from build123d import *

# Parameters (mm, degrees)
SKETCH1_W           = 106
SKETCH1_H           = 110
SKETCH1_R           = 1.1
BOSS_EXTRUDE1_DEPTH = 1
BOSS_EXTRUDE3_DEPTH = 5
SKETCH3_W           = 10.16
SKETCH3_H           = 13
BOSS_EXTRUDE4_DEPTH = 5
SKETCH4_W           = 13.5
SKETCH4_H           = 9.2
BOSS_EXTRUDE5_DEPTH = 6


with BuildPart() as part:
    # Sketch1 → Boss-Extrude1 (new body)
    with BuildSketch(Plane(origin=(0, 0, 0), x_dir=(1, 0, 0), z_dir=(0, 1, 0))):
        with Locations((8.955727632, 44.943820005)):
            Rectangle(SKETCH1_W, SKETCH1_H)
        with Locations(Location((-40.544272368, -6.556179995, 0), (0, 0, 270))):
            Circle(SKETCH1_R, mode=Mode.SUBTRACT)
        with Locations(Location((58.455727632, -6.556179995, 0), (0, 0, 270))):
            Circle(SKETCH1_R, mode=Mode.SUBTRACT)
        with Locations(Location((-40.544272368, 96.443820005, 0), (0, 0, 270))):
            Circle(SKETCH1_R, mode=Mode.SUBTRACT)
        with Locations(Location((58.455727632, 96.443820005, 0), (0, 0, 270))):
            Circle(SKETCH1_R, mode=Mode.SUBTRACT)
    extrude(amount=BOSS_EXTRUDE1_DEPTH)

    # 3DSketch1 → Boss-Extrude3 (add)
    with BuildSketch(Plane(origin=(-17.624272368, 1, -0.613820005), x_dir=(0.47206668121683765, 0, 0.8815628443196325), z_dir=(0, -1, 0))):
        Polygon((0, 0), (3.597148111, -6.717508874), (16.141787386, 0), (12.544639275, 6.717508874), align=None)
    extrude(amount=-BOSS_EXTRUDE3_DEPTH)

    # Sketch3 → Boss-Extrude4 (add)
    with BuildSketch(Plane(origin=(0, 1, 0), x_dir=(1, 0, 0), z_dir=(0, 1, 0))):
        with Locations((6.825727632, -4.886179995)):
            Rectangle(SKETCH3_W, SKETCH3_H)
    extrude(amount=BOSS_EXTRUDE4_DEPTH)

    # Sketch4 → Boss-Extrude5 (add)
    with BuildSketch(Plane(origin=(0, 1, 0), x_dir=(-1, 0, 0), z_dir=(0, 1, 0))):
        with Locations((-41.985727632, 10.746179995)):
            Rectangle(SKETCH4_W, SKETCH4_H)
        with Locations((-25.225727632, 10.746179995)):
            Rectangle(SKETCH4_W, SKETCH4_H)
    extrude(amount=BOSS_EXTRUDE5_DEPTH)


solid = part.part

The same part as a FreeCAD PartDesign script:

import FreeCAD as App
import Part
import Sketcher

V = App.Vector
Q = App.Units.Quantity

doc = App.newDocument("Part")
params = doc.addObject("Spreadsheet::Sheet", "Params")
for row, (alias, value) in enumerate([
    ("sketch1_diameter", "2.2 mm"),
    ("sketch1_width", "106 mm"),
    ("sketch1_height", "110 mm"),
    ("pad1_length", "1 mm"),
    ("sketch2_width", "7.62 mm"),
    ("sketch2_height", "14.23 mm"),
    ("pad2_length", "5 mm"),
    ("sketch3_height", "13 mm"),
    ("sketch3_width", "10.16 mm"),
    ("pad3_length", "5 mm"),
    ("sketch4_width", "13.5 mm"),
    ("sketch4_height", "9.2 mm"),
    ("pad4_length", "6 mm"),
], start=1):
    params.set(f"A{row}", alias)
    params.set(f"B{row}", "=" + value)
    params.setAlias(f"B{row}", alias)

body = doc.addObject("PartDesign::Body", "Body")

# Sketch on XZ plane
sketch1 = body.newObject("Sketcher::SketchObject", "Sketch")
sketch1.AttachmentSupport = (doc.getObject("XZ_Plane"), [""])
sketch1.MapMode = "FlatFace"
sketch1.addGeometry([
    Part.LineSegment(V(-44, -99.9, 0), V(-44, 10.1, 0)),  # 0
    Part.LineSegment(V(-44, 10.1, 0), V(62, 10.1, 0)),  # 1
    Part.LineSegment(V(62, 10.1, 0), V(62, -99.9, 0)),  # 2
    Part.LineSegment(V(62, -99.9, 0), V(-44, -99.9, 0)),  # 3
    Part.Circle(V(-40.5, 6.6, 0), V(0, 0, 1), 1.1),  # 4
    Part.Circle(V(58.5, 6.6, 0), V(0, 0, 1), 1.1),  # 5
    Part.Circle(V(-40.5, -96.4, 0), V(0, 0, 1), 1.1),  # 6
    Part.Circle(V(58.5, -96.4, 0), V(0, 0, 1), 1.1),  # 7
], False)
sketch1.addConstraint([
    Sketcher.Constraint("Coincident", 0, 2, 1, 1),
    Sketcher.Constraint("Coincident", 1, 2, 2, 1),
    Sketcher.Constraint("Coincident", 2, 2, 3, 1),
    Sketcher.Constraint("Coincident", 3, 2, 0, 1),
    Sketcher.Constraint("Vertical", 0),
    Sketcher.Constraint("Horizontal", 1),
    Sketcher.Constraint("Vertical", 2),
    Sketcher.Constraint("Horizontal", 3),
    Sketcher.Constraint("Equal", 4, 5),
    Sketcher.Constraint("Equal", 5, 6),
    Sketcher.Constraint("Equal", 6, 7),
    Sketcher.Constraint("Horizontal", 4, 3, 5, 3),
    Sketcher.Constraint("Horizontal", 6, 3, 7, 3),
    Sketcher.Constraint("Vertical", 4, 3, 6, 3),
    Sketcher.Constraint("Vertical", 5, 3, 7, 3),
    Sketcher.Constraint("Diameter", 4, Q("2.2 mm")),
    Sketcher.Constraint("DistanceX", 1, 1, 1, 2, Q("106 mm")),
    Sketcher.Constraint("DistanceY", 0, 1, 0, 2, Q("110 mm")),
    Sketcher.Constraint("DistanceX", 4, 3, 5, 3, Q("99 mm")),
    Sketcher.Constraint("DistanceY", 6, 3, 4, 3, Q("103 mm")),
    Sketcher.Constraint("DistanceX", 0, 2, 4, 3, Q("3.5 mm")),
    Sketcher.Constraint("DistanceY", 4, 3, 0, 2, Q("3.5 mm")),
    Sketcher.Constraint("DistanceY", -1, 1, 4, 3, Q("6.55618 mm")),
    Sketcher.Constraint("DistanceX", 4, 3, -1, 1, Q("40.544272 mm")),
])
sketch1.setExpression("Constraints[15]", "Params.sketch1_diameter")
sketch1.setExpression("Constraints[16]", "Params.sketch1_width")
sketch1.setExpression("Constraints[17]", "Params.sketch1_height")
pad1 = body.newObject("PartDesign::Pad", "Pad")
pad1.Profile = sketch1
pad1.setExpression("Length", "Params.pad1_length")
pad1.Reversed = True

# Sketch on XZ plane
sketch2 = body.newObject("Sketcher::SketchObject", "Sketch001")
sketch2.AttachmentSupport = (doc.getObject("XZ_Plane"), [""])
sketch2.MapMode = "FlatFace"
sketch2.AttachmentOffset = App.Placement(V(0, 0, -1), App.Rotation())
sketch2.addGeometry([
    Part.LineSegment(V(-18, -1, 0), V(-10, -1, 0)),
    Part.LineSegment(V(-10, -1, 0), V(-10, 14, 0)),
    Part.LineSegment(V(-10, 14, 0), V(-18, 14, 0)),
    Part.LineSegment(V(-18, 14, 0), V(-18, -1, 0)),
], False)
sketch2.addConstraint([
    Sketcher.Constraint("Coincident", 0, 2, 1, 1),
    Sketcher.Constraint("Coincident", 1, 2, 2, 1),
    Sketcher.Constraint("Coincident", 2, 2, 3, 1),
    Sketcher.Constraint("Coincident", 3, 2, 0, 1),
    Sketcher.Constraint("Horizontal", 0),
    Sketcher.Constraint("Vertical", 1),
    Sketcher.Constraint("Horizontal", 2),
    Sketcher.Constraint("Vertical", 3),
    Sketcher.Constraint("DistanceX", 0, 1, 0, 2, Q("7.62 mm")),
    Sketcher.Constraint("DistanceY", 1, 1, 1, 2, Q("14.23 mm")),
    Sketcher.Constraint("DistanceY", 0, 2, -1, 1, Q("0.61382 mm")),
    Sketcher.Constraint("DistanceX", 0, 2, -1, 1, Q("10.004272 mm")),
])
sketch2.setExpression("Constraints[8]", "Params.sketch2_width")
sketch2.setExpression("Constraints[9]", "Params.sketch2_height")
pad2 = body.newObject("PartDesign::Pad", "Pad001")
pad2.Profile = sketch2
pad2.setExpression("Length", "Params.pad2_length")
pad2.Reversed = True

# Sketch on XZ plane
sketch3 = body.newObject("Sketcher::SketchObject", "Sketch002")
sketch3.AttachmentSupport = (doc.getObject("XZ_Plane"), [""])
sketch3.MapMode = "FlatFace"
sketch3.AttachmentOffset = App.Placement(V(0, 0, -1), App.Rotation())
sketch3.addGeometry([
    Part.LineSegment(V(2, -2, 0), V(2, 11, 0)),
    Part.LineSegment(V(2, 11, 0), V(12, 11, 0)),
    Part.LineSegment(V(12, 11, 0), V(12, -2, 0)),
    Part.LineSegment(V(12, -2, 0), V(2, -2, 0)),
], False)
sketch3.addConstraint([
    Sketcher.Constraint("Coincident", 0, 2, 1, 1),
    Sketcher.Constraint("Coincident", 1, 2, 2, 1),
    Sketcher.Constraint("Coincident", 2, 2, 3, 1),
    Sketcher.Constraint("Coincident", 3, 2, 0, 1),
    Sketcher.Constraint("Vertical", 0),
    Sketcher.Constraint("Horizontal", 1),
    Sketcher.Constraint("Vertical", 2),
    Sketcher.Constraint("Horizontal", 3),
    Sketcher.Constraint("DistanceY", 0, 1, 0, 2, Q("13 mm")),
    Sketcher.Constraint("DistanceX", 1, 1, 1, 2, Q("10.16 mm")),
    Sketcher.Constraint("DistanceY", -1, 1, 0, 2, Q("11.38618 mm")),
    Sketcher.Constraint("DistanceX", -1, 1, 0, 2, Q("1.745728 mm")),
])
sketch3.setExpression("Constraints[8]", "Params.sketch3_height")
sketch3.setExpression("Constraints[9]", "Params.sketch3_width")
pad3 = body.newObject("PartDesign::Pad", "Pad002")
pad3.Profile = sketch3
pad3.setExpression("Length", "Params.pad3_length")
pad3.Reversed = True

# Sketch on XZ plane
sketch4 = body.newObject("Sketcher::SketchObject", "Sketch003")
sketch4.AttachmentSupport = (doc.getObject("XZ_Plane"), [""])
sketch4.MapMode = "FlatFace"
sketch4.AttachmentOffset = App.Placement(V(0, 0, -1), App.Rotation())
sketch4.addGeometry([
    Part.LineSegment(V(49, 15, 0), V(49, 6, 0)),  # 0
    Part.LineSegment(V(49, 6, 0), V(35, 6, 0)),  # 1
    Part.LineSegment(V(35, 6, 0), V(35, 15, 0)),  # 2
    Part.LineSegment(V(35, 15, 0), V(49, 15, 0)),  # 3
    Part.LineSegment(V(32, 15, 0), V(32, 6, 0)),  # 4
    Part.LineSegment(V(32, 6, 0), V(18, 6, 0)),  # 5
    Part.LineSegment(V(18, 6, 0), V(18, 15, 0)),  # 6
    Part.LineSegment(V(18, 15, 0), V(32, 15, 0)),  # 7
], False)
sketch4.addConstraint([
    Sketcher.Constraint("Coincident", 0, 2, 1, 1),
    Sketcher.Constraint("Coincident", 1, 2, 2, 1),
    Sketcher.Constraint("Coincident", 2, 2, 3, 1),
    Sketcher.Constraint("Coincident", 3, 2, 0, 1),
    Sketcher.Constraint("Coincident", 4, 2, 5, 1),
    Sketcher.Constraint("Coincident", 5, 2, 6, 1),
    Sketcher.Constraint("Coincident", 6, 2, 7, 1),
    Sketcher.Constraint("Coincident", 7, 2, 4, 1),
    Sketcher.Constraint("Vertical", 0),
    Sketcher.Constraint("Horizontal", 1),
    Sketcher.Constraint("Vertical", 2),
    Sketcher.Constraint("Horizontal", 3),
    Sketcher.Constraint("Vertical", 4),
    Sketcher.Constraint("Horizontal", 5),
    Sketcher.Constraint("Vertical", 6),
    Sketcher.Constraint("Horizontal", 7),
    Sketcher.Constraint("Horizontal", 1, 2, 4, 2),
    Sketcher.Constraint("Horizontal", 3, 2, 6, 2),
    Sketcher.Constraint("Equal", 3, 5),
    Sketcher.Constraint("DistanceX", 1, 2, 1, 1, Q("13.5 mm")),
    Sketcher.Constraint("DistanceY", 0, 2, 0, 1, Q("9.2 mm")),
    Sketcher.Constraint("DistanceX", 4, 2, 1, 2, Q("3.26 mm")),
    Sketcher.Constraint("DistanceY", -1, 1, 0, 2, Q("6.14618 mm")),
    Sketcher.Constraint("DistanceX", -1, 1, 0, 2, Q("48.735728 mm")),
])
sketch4.setExpression("Constraints[19]", "Params.sketch4_width")
sketch4.setExpression("Constraints[20]", "Params.sketch4_height")
pad4 = body.newObject("PartDesign::Pad", "Pad003")
pad4.Profile = sketch4
pad4.setExpression("Length", "Params.pad4_length")
pad4.Reversed = True

doc.recompute()
